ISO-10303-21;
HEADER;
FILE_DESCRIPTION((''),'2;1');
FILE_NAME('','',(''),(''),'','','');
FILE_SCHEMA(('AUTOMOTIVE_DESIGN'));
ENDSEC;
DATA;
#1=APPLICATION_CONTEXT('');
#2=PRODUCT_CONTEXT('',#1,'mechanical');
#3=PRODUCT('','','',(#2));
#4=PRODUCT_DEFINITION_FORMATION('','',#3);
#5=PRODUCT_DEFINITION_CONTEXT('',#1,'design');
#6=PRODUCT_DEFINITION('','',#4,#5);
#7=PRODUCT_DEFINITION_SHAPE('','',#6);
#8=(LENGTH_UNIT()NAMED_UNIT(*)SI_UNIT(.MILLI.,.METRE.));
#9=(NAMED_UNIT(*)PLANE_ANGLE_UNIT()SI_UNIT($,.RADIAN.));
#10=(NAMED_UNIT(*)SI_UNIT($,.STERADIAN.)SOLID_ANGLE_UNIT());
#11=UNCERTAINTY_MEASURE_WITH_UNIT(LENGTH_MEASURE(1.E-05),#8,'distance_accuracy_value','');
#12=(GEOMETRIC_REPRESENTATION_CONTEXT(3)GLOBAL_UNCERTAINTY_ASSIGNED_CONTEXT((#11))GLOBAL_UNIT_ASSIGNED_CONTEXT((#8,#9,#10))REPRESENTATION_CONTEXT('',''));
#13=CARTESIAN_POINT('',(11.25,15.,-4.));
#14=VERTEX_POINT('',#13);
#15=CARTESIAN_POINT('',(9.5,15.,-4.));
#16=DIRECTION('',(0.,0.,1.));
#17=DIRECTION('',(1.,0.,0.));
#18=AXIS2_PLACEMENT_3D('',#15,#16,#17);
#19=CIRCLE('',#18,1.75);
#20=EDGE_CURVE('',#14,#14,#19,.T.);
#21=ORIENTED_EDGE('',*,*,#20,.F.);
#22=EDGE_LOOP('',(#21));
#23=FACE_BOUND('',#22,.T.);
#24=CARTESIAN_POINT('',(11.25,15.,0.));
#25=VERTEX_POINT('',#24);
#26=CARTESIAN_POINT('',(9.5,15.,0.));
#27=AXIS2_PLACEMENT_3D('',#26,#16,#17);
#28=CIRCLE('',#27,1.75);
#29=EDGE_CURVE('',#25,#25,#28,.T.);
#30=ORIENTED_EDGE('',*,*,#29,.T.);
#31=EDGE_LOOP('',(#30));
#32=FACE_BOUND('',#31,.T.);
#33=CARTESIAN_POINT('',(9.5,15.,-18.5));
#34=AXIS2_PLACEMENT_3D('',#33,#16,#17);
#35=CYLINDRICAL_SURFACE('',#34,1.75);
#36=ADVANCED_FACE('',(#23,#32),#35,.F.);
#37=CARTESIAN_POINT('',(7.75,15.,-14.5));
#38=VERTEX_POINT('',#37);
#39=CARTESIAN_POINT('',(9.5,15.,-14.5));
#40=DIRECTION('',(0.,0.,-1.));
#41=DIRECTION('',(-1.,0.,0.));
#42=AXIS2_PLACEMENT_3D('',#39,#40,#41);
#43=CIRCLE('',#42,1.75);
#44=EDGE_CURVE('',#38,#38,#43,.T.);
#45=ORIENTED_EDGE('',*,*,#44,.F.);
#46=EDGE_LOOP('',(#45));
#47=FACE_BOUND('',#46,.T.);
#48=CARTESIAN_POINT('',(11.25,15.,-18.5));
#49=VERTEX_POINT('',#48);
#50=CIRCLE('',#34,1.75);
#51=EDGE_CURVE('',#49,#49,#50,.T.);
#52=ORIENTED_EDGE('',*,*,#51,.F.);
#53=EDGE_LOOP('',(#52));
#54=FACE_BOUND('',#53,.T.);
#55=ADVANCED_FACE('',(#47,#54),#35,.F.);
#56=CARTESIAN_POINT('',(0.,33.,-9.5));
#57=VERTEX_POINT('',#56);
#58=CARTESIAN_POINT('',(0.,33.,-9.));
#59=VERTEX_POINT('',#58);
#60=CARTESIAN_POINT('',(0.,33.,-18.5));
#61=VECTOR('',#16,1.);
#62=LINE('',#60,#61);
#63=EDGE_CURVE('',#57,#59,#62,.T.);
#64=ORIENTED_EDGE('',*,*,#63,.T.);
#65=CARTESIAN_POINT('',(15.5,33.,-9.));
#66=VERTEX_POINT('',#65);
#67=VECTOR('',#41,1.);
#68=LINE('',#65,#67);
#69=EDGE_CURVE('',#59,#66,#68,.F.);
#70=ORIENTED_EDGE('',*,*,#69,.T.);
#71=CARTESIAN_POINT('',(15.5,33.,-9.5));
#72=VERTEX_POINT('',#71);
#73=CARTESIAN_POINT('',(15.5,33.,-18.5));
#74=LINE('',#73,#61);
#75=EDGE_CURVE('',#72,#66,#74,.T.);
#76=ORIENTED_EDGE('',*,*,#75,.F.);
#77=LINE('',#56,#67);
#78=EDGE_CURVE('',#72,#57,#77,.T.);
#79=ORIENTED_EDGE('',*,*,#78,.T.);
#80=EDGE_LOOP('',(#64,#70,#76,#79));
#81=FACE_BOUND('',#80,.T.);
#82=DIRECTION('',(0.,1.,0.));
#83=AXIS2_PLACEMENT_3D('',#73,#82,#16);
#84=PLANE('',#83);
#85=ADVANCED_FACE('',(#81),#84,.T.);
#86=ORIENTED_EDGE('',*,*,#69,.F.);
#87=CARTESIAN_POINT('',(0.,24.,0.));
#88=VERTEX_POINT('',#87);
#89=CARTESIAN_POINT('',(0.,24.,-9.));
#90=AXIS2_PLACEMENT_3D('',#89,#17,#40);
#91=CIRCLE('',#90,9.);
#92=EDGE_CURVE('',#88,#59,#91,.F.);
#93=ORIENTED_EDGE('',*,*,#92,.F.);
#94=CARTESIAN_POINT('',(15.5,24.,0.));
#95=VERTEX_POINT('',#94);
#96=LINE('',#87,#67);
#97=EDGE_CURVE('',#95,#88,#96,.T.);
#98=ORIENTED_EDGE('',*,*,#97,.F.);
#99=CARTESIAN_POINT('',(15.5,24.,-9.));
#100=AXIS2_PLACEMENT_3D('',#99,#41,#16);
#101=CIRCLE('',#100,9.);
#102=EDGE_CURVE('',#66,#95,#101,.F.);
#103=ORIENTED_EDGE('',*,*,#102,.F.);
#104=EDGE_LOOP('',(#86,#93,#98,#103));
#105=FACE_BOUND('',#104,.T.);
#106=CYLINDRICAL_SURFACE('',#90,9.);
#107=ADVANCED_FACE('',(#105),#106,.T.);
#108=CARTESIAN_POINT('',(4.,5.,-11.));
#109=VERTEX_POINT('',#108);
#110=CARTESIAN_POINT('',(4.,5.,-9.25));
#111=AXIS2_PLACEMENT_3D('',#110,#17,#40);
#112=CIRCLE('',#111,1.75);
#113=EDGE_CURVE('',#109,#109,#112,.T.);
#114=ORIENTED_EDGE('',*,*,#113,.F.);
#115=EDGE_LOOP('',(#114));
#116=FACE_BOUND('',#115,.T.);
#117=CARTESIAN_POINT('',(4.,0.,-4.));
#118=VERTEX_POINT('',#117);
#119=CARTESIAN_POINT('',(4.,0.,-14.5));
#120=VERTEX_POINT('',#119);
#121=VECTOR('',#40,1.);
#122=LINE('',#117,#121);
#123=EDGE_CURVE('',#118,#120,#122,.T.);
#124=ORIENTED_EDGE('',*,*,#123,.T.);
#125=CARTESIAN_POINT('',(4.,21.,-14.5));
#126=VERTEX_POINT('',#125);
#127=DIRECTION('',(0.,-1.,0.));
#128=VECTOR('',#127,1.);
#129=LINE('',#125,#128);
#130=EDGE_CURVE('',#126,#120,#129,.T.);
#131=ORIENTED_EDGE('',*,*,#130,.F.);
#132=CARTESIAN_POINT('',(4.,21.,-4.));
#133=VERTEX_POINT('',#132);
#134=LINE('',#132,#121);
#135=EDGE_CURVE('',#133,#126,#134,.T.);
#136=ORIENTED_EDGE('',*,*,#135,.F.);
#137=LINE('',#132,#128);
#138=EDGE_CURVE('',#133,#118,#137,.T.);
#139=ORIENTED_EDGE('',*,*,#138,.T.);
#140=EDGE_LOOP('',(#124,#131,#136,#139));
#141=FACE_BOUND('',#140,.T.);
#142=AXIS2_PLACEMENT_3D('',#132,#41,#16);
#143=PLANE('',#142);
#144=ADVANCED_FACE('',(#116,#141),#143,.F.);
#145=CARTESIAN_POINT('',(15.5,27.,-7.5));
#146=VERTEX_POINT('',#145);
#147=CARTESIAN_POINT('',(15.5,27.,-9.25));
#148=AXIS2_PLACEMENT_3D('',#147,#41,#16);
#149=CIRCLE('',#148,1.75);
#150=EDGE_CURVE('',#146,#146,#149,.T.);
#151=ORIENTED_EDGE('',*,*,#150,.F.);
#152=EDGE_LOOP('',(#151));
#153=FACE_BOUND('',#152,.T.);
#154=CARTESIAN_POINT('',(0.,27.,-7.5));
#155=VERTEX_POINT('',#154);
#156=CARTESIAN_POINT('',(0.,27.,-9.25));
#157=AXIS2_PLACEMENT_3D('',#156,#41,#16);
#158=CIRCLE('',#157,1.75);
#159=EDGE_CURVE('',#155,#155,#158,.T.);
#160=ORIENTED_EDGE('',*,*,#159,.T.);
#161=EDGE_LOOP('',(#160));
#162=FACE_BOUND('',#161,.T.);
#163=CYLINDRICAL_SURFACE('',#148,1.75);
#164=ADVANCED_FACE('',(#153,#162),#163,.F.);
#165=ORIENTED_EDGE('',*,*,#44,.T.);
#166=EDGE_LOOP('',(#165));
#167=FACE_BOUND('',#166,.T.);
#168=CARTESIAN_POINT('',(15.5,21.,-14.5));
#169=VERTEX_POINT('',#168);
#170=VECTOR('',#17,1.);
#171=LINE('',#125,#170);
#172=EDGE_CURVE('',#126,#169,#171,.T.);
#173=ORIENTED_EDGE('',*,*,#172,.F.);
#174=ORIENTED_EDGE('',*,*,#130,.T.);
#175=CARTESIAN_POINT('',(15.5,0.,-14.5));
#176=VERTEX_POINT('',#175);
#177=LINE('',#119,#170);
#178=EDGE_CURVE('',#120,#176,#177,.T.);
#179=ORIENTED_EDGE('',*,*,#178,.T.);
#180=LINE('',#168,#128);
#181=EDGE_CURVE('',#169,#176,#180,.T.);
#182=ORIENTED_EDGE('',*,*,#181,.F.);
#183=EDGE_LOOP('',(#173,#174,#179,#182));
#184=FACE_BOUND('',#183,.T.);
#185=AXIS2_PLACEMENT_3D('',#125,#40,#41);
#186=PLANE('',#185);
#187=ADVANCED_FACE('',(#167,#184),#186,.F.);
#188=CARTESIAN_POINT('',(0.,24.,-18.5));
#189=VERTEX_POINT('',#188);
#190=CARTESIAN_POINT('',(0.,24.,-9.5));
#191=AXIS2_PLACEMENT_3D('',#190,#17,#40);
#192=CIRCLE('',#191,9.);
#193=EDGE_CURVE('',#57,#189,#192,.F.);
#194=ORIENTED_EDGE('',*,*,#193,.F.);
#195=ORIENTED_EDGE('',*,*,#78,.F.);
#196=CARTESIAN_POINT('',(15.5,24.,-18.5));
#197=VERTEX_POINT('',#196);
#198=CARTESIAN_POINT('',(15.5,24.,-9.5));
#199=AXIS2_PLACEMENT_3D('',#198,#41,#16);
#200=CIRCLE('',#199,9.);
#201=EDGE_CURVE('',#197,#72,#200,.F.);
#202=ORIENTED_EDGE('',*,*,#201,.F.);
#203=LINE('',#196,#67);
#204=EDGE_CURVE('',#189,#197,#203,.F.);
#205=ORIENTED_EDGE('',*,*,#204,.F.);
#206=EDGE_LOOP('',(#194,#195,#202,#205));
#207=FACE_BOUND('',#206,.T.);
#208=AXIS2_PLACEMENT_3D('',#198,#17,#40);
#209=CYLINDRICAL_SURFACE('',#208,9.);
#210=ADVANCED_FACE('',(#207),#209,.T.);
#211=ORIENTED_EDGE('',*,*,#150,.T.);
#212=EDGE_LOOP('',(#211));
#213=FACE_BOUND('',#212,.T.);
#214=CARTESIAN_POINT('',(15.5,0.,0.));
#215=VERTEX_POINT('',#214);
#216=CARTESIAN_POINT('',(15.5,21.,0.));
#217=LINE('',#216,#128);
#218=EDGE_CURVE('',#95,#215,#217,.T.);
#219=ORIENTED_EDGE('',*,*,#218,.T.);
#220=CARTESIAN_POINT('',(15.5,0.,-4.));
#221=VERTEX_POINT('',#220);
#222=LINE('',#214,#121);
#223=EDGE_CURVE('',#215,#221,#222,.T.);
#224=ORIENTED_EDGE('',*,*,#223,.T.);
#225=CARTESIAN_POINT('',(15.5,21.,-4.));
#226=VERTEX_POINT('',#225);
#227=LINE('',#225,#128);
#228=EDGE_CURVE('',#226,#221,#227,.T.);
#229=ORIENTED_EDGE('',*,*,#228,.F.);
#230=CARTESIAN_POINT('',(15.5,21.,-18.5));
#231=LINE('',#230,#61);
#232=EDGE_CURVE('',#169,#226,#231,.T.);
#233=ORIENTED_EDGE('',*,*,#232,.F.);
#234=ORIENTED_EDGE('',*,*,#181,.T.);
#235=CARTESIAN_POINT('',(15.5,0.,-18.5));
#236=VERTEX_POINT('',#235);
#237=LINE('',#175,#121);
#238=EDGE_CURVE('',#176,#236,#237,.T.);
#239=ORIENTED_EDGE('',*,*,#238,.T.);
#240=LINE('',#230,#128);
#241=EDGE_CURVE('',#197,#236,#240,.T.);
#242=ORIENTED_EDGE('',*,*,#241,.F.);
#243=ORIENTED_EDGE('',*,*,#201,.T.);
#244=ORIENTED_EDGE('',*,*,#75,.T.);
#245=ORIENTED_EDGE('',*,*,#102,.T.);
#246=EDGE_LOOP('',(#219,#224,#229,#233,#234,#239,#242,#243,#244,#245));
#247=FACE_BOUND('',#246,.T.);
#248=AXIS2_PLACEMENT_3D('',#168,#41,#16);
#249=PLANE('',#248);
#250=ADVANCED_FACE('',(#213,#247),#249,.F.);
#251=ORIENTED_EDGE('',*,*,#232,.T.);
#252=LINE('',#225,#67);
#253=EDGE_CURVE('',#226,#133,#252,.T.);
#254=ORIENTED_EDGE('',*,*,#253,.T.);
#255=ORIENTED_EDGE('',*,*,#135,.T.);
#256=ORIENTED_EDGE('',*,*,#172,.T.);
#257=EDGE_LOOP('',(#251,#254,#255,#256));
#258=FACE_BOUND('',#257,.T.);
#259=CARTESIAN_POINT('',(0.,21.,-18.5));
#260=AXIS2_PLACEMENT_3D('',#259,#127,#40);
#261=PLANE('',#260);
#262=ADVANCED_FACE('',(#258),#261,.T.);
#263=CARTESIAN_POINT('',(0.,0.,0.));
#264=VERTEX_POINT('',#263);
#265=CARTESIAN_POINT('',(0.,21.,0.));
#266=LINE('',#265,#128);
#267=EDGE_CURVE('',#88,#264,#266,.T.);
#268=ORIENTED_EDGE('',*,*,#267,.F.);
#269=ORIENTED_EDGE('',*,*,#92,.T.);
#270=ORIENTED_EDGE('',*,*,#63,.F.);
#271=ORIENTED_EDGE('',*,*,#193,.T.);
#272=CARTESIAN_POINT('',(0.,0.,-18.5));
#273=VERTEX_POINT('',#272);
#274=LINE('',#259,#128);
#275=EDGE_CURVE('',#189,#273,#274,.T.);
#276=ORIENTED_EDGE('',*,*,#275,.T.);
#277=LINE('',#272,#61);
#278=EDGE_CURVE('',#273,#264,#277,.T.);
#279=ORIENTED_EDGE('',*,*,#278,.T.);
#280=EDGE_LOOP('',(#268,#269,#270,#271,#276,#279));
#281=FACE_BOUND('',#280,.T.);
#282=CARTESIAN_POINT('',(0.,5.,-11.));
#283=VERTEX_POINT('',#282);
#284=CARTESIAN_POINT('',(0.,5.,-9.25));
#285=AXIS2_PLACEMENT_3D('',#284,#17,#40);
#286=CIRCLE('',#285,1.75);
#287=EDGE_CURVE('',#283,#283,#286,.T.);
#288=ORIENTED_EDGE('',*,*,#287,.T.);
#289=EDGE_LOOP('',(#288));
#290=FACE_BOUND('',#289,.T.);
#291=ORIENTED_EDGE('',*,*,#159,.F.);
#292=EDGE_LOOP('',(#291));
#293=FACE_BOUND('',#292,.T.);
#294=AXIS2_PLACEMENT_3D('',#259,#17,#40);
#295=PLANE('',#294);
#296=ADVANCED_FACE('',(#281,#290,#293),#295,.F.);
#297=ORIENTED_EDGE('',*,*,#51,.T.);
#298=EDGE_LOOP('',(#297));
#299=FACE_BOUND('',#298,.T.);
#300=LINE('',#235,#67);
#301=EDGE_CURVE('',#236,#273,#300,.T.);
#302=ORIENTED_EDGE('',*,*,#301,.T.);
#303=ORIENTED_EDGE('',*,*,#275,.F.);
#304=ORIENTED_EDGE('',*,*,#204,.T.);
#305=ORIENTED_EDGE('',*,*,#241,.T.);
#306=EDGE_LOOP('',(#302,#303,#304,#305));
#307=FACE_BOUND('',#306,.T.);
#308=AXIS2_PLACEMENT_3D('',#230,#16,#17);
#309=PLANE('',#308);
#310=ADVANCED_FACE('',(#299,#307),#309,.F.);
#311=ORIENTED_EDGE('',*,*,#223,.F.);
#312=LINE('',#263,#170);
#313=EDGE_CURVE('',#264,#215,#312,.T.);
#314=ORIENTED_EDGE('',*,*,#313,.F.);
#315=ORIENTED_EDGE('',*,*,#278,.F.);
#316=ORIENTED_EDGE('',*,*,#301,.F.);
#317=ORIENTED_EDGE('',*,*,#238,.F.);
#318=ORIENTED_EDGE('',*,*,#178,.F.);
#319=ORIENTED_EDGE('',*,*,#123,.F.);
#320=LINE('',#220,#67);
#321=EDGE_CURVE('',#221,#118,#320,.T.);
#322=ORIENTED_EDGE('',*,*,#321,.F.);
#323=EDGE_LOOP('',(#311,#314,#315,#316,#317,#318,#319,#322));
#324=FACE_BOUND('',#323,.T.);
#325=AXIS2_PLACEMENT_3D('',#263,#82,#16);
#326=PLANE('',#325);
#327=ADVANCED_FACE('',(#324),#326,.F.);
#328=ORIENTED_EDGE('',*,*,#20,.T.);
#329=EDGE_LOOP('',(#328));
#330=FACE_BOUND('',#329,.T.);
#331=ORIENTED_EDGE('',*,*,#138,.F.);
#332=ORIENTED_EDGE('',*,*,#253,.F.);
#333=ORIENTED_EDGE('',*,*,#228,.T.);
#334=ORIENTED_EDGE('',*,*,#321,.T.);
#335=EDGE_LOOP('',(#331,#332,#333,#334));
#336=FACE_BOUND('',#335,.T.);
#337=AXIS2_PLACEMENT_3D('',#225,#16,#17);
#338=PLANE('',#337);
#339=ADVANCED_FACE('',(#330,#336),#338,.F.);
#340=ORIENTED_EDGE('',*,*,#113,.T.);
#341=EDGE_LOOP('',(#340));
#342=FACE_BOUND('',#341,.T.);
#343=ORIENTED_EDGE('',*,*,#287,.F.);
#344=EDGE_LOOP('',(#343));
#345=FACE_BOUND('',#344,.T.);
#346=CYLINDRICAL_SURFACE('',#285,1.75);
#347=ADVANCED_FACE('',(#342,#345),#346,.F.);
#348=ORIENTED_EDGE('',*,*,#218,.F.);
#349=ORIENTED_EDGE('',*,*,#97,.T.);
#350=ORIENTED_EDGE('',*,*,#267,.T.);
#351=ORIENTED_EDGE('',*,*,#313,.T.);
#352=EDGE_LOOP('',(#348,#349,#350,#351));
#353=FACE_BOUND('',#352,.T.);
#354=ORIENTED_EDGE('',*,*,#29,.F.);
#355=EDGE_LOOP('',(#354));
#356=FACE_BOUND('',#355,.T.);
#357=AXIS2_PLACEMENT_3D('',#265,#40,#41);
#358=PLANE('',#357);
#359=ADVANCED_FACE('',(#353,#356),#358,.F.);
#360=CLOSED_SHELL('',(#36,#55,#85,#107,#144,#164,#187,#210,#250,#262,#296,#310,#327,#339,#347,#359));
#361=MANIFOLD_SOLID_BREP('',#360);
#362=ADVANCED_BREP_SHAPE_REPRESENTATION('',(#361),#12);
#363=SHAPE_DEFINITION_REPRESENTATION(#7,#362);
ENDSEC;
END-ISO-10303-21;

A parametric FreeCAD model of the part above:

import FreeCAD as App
import Part
import Sketcher
from FreeCAD import Vector


def edges_at(feature, points):
    """Names of the edges that pass closest to the given points."""
    edges = feature.Shape.Edges
    near = lambda p: min(range(len(edges)), key=lambda i: edges[i].distToShape(Part.Vertex(*p))[0])
    return sorted({f"Edge{near(p) + 1}" for p in points})


def add_polygon(sketch, points):
    """Adds a closed chain of lines whose ends are joined by coincident constraints."""
    first, n = sketch.GeometryCount, len(points)
    for a, b in zip(points, points[1:] + points[:1]):
        sketch.addGeometry(Part.LineSegment(App.Vector(*a, 0), App.Vector(*b, 0)), False)
    for i in range(n):
        sketch.addConstraint(Sketcher.Constraint("Coincident", first + i, 2, first + (i + 1) % n, 1))

doc = App.newDocument("Part")
body = doc.addObject("PartDesign::Body", "Body")

sketch1 = doc.addObject("Sketcher::SketchObject", "Sketch")
body.addObject(sketch1)
sketch1.AttachmentSupport = (doc.XZ_Plane, [""])
sketch1.MapMode = "FlatFace"
add_polygon(sketch1, [(0, -18.5), (0, 0), (15.5, 0), (15.5, -4), (4, -4), (4, -14.5), (15.5, -14.5), (15.5, -18.5)])
sketch1.addConstraint(Sketcher.Constraint("Vertical", 0))
sketch1.addConstraint(Sketcher.Constraint("Horizontal", 1))
sketch1.addConstraint(Sketcher.Constraint("Vertical", 2))
sketch1.addConstraint(Sketcher.Constraint("Horizontal", 3))
sketch1.addConstraint(Sketcher.Constraint("Vertical", 4))
sketch1.addConstraint(Sketcher.Constraint("Horizontal", 5))
sketch1.addConstraint(Sketcher.Constraint("Vertical", 6))
sketch1.addConstraint(Sketcher.Constraint("Horizontal", 7))
sketch1.addConstraint(Sketcher.Constraint("Coincident", 0, 2, -1, 1))
sketch1.addConstraint(Sketcher.Constraint("Vertical", 2, 2, 5, 2))
sketch1.addConstraint(Sketcher.Constraint("Equal", 2, 6))
sketch1.addConstraint(Sketcher.Constraint("DistanceY", 2, 2, 2, 1, 4.0))
sketch1.addConstraint(Sketcher.Constraint("DistanceX", 1, 1, 1, 2, 15.5))
sketch1.addConstraint(Sketcher.Constraint("DistanceX", 3, 2, 3, 1, 11.5))
sketch1.addConstraint(Sketcher.Constraint("DistanceY", 0, 1, 0, 2, 18.5))
pad1 = doc.addObject("PartDesign::Pad", "Pad")
body.addObject(pad1)
pad1.Profile = sketch1
pad1.Length = 21
pad1.Reversed = True

sketch2 = doc.addObject("Sketcher::SketchObject", "Sketch001")
body.addObject(sketch2)
sketch2.AttachmentSupport = (doc.XY_Plane, [""])
sketch2.MapMode = "FlatFace"
add_polygon(sketch2, [(0, 33), (0, 21), (16, 21), (16, 33)])
sketch2.addConstraint(Sketcher.Constraint("Vertical", 0))
sketch2.addConstraint(Sketcher.Constraint("Horizontal", 1))
sketch2.addConstraint(Sketcher.Constraint("Vertical", 2))
sketch2.addConstraint(Sketcher.Constraint("Horizontal", 3))
sketch2.addConstraint(Sketcher.Constraint("PointOnObject", 0, 2, -2))
sketch2.addConstraint(Sketcher.Constraint("DistanceY", 0, 2, 0, 1, 12.0))
sketch2.addConstraint(Sketcher.Constraint("DistanceX", 1, 1, 1, 2, 15.5))
sketch2.addConstraint(Sketcher.Constraint("DistanceY", -1, 1, 0, 2, 21.0))
pad2 = doc.addObject("PartDesign::Pad", "Pad001")
body.addObject(pad2)
pad2.Profile = sketch2
pad2.Length = 18.5
pad2.Reversed = True

sketch3 = doc.addObject("Sketcher::SketchObject", "Sketch002")
body.addObject(sketch3)
sketch3.AttachmentSupport = (doc.XY_Plane, [""])
sketch3.MapMode = "FlatFace"
sketch3.addGeometry(Part.Circle(Vector(9.5, 15, 0), Vector(0, 0, 1), 1.8), False)
sketch3.addConstraint(Sketcher.Constraint("Diameter", 0, 3.5))
sketch3.addConstraint(Sketcher.Constraint("DistanceY", -1, 1, 0, 3, 15.0))
sketch3.addConstraint(Sketcher.Constraint("DistanceX", -1, 1, 0, 3, 9.5))
pocket1 = doc.addObject("PartDesign::Pocket", "Pocket")
body.addObject(pocket1)
pocket1.Profile = sketch3
pocket1.Type = "ThroughAll"

sketch4 = doc.addObject("Sketcher::SketchObject", "Sketch003")
body.addObject(sketch4)
sketch4.AttachmentSupport = (doc.YZ_Plane, [""])
sketch4.MapMode = "FlatFace"
sketch4.addGeometry(Part.Circle(Vector(27, -9.2, 0), Vector(0, 0, 1), 1.8), False)
sketch4.addConstraint(Sketcher.Constraint("Diameter", 0, 3.5))
sketch4.addConstraint(Sketcher.Constraint("DistanceX", -1, 1, 0, 3, 27.0))
sketch4.addConstraint(Sketcher.Constraint("DistanceY", 0, 3, -1, 1, 9.25))
pocket2 = doc.addObject("PartDesign::Pocket", "Pocket001")
body.addObject(pocket2)
pocket2.Profile = sketch4
pocket2.Type = "ThroughAll"
pocket2.Reversed = True

sketch5 = doc.addObject("Sketcher::SketchObject", "Sketch004")
body.addObject(sketch5)
sketch5.AttachmentSupport = (doc.YZ_Plane, [""])
sketch5.MapMode = "FlatFace"
sketch5.AttachmentOffset = App.Placement(Vector(0, 0, 4), App.Rotation())
sketch5.addGeometry(Part.Circle(Vector(5, -9.2, 0), Vector(0, 0, 1), 1.8), False)
sketch5.addConstraint(Sketcher.Constraint("Diameter", 0, 3.5))
sketch5.addConstraint(Sketcher.Constraint("DistanceX", -1, 1, 0, 3, 5.0))
sketch5.addConstraint(Sketcher.Constraint("DistanceY", 0, 3, -1, 1, 9.25))
pocket3 = doc.addObject("PartDesign::Pocket", "Pocket002")
body.addObject(pocket3)
pocket3.Profile = sketch5
pocket3.Type = "ThroughAll"
doc.recompute()

fillet = doc.addObject("PartDesign::Fillet", "Fillet")
body.addObject(fillet)
fillet.Base = (pocket3, edges_at(pocket3, [(7.75, 33, -18.5), (7.75, 33, 0)]))
fillet.Radius = 9

doc.recompute()
